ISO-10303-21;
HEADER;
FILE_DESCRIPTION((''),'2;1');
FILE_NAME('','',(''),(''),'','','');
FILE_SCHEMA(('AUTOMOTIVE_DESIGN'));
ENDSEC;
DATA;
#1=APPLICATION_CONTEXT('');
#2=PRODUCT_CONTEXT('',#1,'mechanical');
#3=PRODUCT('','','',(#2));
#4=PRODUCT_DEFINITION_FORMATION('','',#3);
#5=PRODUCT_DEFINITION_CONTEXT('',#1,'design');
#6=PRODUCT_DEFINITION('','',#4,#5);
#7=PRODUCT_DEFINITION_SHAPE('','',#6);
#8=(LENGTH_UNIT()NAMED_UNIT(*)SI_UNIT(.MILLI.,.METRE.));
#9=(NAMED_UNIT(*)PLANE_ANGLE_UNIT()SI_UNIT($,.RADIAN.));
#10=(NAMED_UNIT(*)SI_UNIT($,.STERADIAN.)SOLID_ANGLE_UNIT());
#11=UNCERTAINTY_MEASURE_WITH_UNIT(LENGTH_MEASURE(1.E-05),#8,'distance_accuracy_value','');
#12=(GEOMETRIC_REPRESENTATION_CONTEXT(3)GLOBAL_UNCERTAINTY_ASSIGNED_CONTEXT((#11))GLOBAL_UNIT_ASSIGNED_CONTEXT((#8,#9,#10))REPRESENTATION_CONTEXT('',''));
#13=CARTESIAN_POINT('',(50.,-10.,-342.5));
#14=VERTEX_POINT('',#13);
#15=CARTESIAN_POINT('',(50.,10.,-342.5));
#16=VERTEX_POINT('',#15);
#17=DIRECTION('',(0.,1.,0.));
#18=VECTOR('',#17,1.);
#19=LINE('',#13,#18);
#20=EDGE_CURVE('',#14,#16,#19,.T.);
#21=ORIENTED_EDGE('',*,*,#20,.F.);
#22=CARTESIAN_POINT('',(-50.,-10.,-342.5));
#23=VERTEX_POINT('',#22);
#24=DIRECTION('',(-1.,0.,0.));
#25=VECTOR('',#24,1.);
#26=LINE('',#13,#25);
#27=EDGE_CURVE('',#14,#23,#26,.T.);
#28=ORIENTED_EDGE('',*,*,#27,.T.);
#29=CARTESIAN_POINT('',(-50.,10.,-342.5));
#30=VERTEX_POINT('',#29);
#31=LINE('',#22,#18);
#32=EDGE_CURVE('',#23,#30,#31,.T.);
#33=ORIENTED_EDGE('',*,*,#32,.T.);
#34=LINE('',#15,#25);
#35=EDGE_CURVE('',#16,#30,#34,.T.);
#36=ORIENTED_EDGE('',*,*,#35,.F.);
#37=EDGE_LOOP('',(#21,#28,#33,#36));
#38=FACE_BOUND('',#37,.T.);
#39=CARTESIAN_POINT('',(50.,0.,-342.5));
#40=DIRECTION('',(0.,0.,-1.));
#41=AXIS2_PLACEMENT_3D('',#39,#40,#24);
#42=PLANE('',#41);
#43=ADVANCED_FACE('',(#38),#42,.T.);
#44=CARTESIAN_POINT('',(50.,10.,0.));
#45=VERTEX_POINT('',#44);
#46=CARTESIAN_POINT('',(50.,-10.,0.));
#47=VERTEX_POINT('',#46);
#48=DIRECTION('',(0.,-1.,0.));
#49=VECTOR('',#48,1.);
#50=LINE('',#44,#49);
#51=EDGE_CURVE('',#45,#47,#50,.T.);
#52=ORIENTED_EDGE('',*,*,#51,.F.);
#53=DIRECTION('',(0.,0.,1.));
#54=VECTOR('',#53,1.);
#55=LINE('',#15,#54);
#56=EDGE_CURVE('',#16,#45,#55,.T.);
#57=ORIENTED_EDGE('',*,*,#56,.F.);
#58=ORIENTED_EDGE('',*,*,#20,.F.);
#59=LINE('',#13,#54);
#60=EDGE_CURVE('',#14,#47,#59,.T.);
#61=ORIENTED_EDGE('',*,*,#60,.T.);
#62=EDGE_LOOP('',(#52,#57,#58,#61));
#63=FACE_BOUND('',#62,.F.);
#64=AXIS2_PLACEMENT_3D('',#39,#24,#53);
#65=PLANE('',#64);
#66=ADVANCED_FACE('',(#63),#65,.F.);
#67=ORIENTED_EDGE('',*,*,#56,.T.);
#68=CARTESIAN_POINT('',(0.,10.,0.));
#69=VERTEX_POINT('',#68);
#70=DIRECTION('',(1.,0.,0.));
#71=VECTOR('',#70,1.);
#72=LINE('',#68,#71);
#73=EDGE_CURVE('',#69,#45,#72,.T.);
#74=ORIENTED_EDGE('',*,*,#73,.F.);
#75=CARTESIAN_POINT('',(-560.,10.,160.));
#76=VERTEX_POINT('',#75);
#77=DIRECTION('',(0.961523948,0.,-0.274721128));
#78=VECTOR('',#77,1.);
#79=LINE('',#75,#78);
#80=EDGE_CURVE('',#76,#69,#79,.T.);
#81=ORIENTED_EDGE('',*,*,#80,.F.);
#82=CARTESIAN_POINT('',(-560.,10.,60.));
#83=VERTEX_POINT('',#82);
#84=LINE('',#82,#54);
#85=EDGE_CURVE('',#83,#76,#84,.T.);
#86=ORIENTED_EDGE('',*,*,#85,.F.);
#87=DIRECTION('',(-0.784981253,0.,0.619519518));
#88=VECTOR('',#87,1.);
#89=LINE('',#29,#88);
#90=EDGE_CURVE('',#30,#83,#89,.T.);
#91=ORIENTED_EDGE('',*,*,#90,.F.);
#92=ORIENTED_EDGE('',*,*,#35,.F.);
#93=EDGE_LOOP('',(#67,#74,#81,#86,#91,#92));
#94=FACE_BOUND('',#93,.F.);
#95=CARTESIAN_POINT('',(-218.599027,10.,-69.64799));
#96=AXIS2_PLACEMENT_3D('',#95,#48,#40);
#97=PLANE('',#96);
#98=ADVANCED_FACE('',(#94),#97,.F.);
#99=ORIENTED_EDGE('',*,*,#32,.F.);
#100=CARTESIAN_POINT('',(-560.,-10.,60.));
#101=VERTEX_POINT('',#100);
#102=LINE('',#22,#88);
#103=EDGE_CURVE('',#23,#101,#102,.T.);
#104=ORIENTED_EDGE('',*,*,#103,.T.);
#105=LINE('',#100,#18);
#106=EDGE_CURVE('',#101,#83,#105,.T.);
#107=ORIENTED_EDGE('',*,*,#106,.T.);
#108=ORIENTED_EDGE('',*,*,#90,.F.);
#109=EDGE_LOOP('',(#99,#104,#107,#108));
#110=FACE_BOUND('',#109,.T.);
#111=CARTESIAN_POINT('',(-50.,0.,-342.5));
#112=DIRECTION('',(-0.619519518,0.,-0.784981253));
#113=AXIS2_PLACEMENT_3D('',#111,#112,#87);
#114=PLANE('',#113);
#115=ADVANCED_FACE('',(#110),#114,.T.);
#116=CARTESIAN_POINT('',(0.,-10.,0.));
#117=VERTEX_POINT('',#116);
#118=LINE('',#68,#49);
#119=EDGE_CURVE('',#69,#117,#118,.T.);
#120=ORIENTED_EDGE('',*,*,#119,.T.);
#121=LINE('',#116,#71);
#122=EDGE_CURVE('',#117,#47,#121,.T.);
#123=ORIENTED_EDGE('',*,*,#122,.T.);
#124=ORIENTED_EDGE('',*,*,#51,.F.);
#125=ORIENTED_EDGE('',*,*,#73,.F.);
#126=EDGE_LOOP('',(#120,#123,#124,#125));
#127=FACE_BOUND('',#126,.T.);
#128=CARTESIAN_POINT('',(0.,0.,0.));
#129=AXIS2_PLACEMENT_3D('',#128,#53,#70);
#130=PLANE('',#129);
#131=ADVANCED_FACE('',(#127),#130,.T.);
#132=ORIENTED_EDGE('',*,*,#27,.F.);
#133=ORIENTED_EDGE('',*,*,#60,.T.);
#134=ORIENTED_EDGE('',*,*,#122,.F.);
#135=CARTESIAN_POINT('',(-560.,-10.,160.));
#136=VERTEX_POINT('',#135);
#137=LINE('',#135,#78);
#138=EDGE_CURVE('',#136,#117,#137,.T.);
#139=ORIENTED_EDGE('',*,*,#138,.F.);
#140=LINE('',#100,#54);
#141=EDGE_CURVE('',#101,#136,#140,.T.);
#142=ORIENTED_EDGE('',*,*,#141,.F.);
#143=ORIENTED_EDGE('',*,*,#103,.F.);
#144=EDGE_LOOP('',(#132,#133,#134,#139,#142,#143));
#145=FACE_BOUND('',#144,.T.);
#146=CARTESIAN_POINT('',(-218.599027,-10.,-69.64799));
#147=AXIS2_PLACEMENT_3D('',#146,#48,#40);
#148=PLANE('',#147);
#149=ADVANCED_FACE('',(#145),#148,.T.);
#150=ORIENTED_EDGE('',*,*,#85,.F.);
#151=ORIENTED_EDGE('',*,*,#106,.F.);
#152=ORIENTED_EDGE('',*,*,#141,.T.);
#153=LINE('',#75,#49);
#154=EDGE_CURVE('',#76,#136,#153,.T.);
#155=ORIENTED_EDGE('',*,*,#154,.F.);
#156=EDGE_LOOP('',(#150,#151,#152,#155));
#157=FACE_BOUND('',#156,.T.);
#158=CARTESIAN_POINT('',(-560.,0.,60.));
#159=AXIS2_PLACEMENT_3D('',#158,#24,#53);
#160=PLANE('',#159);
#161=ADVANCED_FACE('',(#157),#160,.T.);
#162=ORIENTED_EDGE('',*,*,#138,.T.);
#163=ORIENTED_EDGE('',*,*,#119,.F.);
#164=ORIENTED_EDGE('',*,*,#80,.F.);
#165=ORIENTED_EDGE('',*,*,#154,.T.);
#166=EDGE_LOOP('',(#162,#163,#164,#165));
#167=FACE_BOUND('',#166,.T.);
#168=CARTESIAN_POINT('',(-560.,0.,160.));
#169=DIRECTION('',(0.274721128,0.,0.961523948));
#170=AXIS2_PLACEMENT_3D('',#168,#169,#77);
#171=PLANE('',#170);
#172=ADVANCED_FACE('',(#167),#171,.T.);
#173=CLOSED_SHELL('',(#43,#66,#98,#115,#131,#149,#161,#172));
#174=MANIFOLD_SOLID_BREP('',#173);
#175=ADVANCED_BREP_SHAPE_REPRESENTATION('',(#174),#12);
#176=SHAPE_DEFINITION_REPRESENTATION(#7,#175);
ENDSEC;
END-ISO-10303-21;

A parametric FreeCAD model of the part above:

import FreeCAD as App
import Part
import Sketcher

V = App.Vector

doc = App.newDocument("Part")
body = doc.addObject("PartDesign::Body", "Body")

# Sketch on XZ plane
sketch1 = body.newObject("Sketcher::SketchObject", "Sketch")
sketch1.AttachmentSupport = (doc.getObject("XZ_Plane"), [""])
sketch1.MapMode = "FlatFace"
sketch1.addGeometry(Part.LineSegment(V(-50, -342, 0), V(50, -342, 0)), False)
sketch1.addGeometry(Part.LineSegment(V(50, -342, 0), V(50, 0, 0)), False)
sketch1.addGeometry(Part.LineSegment(V(50, 0, 0), V(0, 0, 0)), False)
sketch1.addGeometry(Part.LineSegment(V(0, 0, 0), V(-560, 160, 0)), False)
sketch1.addGeometry(Part.LineSegment(V(-560, 160, 0), V(-560, 60, 0)), False)
sketch1.addGeometry(Part.LineSegment(V(-560, 60, 0), V(-50, -342, 0)), False)
sketch1.addConstraint(Sketcher.Constraint("Coincident", 0, 2, 1, 1))
sketch1.addConstraint(Sketcher.Constraint("Coincident", 1, 2, 2, 1))
sketch1.addConstraint(Sketcher.Constraint("Coincident", 2, 2, 3, 1))
sketch1.addConstraint(Sketcher.Constraint("Coincident", 3, 2, 4, 1))
sketch1.addConstraint(Sketcher.Constraint("Coincident", 4, 2, 5, 1))
sketch1.addConstraint(Sketcher.Constraint("Coincident", 5, 2, 0, 1))
sketch1.addConstraint(Sketcher.Constraint("Horizontal", 0))
sketch1.addConstraint(Sketcher.Constraint("Vertical", 1))
sketch1.addConstraint(Sketcher.Constraint("Horizontal", 2))
sketch1.addConstraint(Sketcher.Constraint("Vertical", 4))
sketch1.addConstraint(Sketcher.Constraint("Coincident", 2, 2, -1, 1))
sketch1.addConstraint(Sketcher.Constraint("Equal", 0, 4))
sketch1.addConstraint(Sketcher.Constraint("DistanceX", 0, 1, 0, 2, 100.0))
sketch1.addConstraint(Sketcher.Constraint("DistanceX", 2, 2, 2, 1, 50.0))
sketch1.addConstraint(Sketcher.Constraint("DistanceY", 1, 1, 1, 2, 342.5))
sketch1.addConstraint(Sketcher.Constraint("DistanceX", 3, 2, -1, 1, 560.0))
sketch1.addConstraint(Sketcher.Constraint("DistanceY", -1, 1, 3, 2, 160.0))
pad1 = body.newObject("PartDesign::Pad", "Pad")
pad1.Profile = sketch1
pad1.Length = 20
pad1.Midplane = True

doc.recompute()
